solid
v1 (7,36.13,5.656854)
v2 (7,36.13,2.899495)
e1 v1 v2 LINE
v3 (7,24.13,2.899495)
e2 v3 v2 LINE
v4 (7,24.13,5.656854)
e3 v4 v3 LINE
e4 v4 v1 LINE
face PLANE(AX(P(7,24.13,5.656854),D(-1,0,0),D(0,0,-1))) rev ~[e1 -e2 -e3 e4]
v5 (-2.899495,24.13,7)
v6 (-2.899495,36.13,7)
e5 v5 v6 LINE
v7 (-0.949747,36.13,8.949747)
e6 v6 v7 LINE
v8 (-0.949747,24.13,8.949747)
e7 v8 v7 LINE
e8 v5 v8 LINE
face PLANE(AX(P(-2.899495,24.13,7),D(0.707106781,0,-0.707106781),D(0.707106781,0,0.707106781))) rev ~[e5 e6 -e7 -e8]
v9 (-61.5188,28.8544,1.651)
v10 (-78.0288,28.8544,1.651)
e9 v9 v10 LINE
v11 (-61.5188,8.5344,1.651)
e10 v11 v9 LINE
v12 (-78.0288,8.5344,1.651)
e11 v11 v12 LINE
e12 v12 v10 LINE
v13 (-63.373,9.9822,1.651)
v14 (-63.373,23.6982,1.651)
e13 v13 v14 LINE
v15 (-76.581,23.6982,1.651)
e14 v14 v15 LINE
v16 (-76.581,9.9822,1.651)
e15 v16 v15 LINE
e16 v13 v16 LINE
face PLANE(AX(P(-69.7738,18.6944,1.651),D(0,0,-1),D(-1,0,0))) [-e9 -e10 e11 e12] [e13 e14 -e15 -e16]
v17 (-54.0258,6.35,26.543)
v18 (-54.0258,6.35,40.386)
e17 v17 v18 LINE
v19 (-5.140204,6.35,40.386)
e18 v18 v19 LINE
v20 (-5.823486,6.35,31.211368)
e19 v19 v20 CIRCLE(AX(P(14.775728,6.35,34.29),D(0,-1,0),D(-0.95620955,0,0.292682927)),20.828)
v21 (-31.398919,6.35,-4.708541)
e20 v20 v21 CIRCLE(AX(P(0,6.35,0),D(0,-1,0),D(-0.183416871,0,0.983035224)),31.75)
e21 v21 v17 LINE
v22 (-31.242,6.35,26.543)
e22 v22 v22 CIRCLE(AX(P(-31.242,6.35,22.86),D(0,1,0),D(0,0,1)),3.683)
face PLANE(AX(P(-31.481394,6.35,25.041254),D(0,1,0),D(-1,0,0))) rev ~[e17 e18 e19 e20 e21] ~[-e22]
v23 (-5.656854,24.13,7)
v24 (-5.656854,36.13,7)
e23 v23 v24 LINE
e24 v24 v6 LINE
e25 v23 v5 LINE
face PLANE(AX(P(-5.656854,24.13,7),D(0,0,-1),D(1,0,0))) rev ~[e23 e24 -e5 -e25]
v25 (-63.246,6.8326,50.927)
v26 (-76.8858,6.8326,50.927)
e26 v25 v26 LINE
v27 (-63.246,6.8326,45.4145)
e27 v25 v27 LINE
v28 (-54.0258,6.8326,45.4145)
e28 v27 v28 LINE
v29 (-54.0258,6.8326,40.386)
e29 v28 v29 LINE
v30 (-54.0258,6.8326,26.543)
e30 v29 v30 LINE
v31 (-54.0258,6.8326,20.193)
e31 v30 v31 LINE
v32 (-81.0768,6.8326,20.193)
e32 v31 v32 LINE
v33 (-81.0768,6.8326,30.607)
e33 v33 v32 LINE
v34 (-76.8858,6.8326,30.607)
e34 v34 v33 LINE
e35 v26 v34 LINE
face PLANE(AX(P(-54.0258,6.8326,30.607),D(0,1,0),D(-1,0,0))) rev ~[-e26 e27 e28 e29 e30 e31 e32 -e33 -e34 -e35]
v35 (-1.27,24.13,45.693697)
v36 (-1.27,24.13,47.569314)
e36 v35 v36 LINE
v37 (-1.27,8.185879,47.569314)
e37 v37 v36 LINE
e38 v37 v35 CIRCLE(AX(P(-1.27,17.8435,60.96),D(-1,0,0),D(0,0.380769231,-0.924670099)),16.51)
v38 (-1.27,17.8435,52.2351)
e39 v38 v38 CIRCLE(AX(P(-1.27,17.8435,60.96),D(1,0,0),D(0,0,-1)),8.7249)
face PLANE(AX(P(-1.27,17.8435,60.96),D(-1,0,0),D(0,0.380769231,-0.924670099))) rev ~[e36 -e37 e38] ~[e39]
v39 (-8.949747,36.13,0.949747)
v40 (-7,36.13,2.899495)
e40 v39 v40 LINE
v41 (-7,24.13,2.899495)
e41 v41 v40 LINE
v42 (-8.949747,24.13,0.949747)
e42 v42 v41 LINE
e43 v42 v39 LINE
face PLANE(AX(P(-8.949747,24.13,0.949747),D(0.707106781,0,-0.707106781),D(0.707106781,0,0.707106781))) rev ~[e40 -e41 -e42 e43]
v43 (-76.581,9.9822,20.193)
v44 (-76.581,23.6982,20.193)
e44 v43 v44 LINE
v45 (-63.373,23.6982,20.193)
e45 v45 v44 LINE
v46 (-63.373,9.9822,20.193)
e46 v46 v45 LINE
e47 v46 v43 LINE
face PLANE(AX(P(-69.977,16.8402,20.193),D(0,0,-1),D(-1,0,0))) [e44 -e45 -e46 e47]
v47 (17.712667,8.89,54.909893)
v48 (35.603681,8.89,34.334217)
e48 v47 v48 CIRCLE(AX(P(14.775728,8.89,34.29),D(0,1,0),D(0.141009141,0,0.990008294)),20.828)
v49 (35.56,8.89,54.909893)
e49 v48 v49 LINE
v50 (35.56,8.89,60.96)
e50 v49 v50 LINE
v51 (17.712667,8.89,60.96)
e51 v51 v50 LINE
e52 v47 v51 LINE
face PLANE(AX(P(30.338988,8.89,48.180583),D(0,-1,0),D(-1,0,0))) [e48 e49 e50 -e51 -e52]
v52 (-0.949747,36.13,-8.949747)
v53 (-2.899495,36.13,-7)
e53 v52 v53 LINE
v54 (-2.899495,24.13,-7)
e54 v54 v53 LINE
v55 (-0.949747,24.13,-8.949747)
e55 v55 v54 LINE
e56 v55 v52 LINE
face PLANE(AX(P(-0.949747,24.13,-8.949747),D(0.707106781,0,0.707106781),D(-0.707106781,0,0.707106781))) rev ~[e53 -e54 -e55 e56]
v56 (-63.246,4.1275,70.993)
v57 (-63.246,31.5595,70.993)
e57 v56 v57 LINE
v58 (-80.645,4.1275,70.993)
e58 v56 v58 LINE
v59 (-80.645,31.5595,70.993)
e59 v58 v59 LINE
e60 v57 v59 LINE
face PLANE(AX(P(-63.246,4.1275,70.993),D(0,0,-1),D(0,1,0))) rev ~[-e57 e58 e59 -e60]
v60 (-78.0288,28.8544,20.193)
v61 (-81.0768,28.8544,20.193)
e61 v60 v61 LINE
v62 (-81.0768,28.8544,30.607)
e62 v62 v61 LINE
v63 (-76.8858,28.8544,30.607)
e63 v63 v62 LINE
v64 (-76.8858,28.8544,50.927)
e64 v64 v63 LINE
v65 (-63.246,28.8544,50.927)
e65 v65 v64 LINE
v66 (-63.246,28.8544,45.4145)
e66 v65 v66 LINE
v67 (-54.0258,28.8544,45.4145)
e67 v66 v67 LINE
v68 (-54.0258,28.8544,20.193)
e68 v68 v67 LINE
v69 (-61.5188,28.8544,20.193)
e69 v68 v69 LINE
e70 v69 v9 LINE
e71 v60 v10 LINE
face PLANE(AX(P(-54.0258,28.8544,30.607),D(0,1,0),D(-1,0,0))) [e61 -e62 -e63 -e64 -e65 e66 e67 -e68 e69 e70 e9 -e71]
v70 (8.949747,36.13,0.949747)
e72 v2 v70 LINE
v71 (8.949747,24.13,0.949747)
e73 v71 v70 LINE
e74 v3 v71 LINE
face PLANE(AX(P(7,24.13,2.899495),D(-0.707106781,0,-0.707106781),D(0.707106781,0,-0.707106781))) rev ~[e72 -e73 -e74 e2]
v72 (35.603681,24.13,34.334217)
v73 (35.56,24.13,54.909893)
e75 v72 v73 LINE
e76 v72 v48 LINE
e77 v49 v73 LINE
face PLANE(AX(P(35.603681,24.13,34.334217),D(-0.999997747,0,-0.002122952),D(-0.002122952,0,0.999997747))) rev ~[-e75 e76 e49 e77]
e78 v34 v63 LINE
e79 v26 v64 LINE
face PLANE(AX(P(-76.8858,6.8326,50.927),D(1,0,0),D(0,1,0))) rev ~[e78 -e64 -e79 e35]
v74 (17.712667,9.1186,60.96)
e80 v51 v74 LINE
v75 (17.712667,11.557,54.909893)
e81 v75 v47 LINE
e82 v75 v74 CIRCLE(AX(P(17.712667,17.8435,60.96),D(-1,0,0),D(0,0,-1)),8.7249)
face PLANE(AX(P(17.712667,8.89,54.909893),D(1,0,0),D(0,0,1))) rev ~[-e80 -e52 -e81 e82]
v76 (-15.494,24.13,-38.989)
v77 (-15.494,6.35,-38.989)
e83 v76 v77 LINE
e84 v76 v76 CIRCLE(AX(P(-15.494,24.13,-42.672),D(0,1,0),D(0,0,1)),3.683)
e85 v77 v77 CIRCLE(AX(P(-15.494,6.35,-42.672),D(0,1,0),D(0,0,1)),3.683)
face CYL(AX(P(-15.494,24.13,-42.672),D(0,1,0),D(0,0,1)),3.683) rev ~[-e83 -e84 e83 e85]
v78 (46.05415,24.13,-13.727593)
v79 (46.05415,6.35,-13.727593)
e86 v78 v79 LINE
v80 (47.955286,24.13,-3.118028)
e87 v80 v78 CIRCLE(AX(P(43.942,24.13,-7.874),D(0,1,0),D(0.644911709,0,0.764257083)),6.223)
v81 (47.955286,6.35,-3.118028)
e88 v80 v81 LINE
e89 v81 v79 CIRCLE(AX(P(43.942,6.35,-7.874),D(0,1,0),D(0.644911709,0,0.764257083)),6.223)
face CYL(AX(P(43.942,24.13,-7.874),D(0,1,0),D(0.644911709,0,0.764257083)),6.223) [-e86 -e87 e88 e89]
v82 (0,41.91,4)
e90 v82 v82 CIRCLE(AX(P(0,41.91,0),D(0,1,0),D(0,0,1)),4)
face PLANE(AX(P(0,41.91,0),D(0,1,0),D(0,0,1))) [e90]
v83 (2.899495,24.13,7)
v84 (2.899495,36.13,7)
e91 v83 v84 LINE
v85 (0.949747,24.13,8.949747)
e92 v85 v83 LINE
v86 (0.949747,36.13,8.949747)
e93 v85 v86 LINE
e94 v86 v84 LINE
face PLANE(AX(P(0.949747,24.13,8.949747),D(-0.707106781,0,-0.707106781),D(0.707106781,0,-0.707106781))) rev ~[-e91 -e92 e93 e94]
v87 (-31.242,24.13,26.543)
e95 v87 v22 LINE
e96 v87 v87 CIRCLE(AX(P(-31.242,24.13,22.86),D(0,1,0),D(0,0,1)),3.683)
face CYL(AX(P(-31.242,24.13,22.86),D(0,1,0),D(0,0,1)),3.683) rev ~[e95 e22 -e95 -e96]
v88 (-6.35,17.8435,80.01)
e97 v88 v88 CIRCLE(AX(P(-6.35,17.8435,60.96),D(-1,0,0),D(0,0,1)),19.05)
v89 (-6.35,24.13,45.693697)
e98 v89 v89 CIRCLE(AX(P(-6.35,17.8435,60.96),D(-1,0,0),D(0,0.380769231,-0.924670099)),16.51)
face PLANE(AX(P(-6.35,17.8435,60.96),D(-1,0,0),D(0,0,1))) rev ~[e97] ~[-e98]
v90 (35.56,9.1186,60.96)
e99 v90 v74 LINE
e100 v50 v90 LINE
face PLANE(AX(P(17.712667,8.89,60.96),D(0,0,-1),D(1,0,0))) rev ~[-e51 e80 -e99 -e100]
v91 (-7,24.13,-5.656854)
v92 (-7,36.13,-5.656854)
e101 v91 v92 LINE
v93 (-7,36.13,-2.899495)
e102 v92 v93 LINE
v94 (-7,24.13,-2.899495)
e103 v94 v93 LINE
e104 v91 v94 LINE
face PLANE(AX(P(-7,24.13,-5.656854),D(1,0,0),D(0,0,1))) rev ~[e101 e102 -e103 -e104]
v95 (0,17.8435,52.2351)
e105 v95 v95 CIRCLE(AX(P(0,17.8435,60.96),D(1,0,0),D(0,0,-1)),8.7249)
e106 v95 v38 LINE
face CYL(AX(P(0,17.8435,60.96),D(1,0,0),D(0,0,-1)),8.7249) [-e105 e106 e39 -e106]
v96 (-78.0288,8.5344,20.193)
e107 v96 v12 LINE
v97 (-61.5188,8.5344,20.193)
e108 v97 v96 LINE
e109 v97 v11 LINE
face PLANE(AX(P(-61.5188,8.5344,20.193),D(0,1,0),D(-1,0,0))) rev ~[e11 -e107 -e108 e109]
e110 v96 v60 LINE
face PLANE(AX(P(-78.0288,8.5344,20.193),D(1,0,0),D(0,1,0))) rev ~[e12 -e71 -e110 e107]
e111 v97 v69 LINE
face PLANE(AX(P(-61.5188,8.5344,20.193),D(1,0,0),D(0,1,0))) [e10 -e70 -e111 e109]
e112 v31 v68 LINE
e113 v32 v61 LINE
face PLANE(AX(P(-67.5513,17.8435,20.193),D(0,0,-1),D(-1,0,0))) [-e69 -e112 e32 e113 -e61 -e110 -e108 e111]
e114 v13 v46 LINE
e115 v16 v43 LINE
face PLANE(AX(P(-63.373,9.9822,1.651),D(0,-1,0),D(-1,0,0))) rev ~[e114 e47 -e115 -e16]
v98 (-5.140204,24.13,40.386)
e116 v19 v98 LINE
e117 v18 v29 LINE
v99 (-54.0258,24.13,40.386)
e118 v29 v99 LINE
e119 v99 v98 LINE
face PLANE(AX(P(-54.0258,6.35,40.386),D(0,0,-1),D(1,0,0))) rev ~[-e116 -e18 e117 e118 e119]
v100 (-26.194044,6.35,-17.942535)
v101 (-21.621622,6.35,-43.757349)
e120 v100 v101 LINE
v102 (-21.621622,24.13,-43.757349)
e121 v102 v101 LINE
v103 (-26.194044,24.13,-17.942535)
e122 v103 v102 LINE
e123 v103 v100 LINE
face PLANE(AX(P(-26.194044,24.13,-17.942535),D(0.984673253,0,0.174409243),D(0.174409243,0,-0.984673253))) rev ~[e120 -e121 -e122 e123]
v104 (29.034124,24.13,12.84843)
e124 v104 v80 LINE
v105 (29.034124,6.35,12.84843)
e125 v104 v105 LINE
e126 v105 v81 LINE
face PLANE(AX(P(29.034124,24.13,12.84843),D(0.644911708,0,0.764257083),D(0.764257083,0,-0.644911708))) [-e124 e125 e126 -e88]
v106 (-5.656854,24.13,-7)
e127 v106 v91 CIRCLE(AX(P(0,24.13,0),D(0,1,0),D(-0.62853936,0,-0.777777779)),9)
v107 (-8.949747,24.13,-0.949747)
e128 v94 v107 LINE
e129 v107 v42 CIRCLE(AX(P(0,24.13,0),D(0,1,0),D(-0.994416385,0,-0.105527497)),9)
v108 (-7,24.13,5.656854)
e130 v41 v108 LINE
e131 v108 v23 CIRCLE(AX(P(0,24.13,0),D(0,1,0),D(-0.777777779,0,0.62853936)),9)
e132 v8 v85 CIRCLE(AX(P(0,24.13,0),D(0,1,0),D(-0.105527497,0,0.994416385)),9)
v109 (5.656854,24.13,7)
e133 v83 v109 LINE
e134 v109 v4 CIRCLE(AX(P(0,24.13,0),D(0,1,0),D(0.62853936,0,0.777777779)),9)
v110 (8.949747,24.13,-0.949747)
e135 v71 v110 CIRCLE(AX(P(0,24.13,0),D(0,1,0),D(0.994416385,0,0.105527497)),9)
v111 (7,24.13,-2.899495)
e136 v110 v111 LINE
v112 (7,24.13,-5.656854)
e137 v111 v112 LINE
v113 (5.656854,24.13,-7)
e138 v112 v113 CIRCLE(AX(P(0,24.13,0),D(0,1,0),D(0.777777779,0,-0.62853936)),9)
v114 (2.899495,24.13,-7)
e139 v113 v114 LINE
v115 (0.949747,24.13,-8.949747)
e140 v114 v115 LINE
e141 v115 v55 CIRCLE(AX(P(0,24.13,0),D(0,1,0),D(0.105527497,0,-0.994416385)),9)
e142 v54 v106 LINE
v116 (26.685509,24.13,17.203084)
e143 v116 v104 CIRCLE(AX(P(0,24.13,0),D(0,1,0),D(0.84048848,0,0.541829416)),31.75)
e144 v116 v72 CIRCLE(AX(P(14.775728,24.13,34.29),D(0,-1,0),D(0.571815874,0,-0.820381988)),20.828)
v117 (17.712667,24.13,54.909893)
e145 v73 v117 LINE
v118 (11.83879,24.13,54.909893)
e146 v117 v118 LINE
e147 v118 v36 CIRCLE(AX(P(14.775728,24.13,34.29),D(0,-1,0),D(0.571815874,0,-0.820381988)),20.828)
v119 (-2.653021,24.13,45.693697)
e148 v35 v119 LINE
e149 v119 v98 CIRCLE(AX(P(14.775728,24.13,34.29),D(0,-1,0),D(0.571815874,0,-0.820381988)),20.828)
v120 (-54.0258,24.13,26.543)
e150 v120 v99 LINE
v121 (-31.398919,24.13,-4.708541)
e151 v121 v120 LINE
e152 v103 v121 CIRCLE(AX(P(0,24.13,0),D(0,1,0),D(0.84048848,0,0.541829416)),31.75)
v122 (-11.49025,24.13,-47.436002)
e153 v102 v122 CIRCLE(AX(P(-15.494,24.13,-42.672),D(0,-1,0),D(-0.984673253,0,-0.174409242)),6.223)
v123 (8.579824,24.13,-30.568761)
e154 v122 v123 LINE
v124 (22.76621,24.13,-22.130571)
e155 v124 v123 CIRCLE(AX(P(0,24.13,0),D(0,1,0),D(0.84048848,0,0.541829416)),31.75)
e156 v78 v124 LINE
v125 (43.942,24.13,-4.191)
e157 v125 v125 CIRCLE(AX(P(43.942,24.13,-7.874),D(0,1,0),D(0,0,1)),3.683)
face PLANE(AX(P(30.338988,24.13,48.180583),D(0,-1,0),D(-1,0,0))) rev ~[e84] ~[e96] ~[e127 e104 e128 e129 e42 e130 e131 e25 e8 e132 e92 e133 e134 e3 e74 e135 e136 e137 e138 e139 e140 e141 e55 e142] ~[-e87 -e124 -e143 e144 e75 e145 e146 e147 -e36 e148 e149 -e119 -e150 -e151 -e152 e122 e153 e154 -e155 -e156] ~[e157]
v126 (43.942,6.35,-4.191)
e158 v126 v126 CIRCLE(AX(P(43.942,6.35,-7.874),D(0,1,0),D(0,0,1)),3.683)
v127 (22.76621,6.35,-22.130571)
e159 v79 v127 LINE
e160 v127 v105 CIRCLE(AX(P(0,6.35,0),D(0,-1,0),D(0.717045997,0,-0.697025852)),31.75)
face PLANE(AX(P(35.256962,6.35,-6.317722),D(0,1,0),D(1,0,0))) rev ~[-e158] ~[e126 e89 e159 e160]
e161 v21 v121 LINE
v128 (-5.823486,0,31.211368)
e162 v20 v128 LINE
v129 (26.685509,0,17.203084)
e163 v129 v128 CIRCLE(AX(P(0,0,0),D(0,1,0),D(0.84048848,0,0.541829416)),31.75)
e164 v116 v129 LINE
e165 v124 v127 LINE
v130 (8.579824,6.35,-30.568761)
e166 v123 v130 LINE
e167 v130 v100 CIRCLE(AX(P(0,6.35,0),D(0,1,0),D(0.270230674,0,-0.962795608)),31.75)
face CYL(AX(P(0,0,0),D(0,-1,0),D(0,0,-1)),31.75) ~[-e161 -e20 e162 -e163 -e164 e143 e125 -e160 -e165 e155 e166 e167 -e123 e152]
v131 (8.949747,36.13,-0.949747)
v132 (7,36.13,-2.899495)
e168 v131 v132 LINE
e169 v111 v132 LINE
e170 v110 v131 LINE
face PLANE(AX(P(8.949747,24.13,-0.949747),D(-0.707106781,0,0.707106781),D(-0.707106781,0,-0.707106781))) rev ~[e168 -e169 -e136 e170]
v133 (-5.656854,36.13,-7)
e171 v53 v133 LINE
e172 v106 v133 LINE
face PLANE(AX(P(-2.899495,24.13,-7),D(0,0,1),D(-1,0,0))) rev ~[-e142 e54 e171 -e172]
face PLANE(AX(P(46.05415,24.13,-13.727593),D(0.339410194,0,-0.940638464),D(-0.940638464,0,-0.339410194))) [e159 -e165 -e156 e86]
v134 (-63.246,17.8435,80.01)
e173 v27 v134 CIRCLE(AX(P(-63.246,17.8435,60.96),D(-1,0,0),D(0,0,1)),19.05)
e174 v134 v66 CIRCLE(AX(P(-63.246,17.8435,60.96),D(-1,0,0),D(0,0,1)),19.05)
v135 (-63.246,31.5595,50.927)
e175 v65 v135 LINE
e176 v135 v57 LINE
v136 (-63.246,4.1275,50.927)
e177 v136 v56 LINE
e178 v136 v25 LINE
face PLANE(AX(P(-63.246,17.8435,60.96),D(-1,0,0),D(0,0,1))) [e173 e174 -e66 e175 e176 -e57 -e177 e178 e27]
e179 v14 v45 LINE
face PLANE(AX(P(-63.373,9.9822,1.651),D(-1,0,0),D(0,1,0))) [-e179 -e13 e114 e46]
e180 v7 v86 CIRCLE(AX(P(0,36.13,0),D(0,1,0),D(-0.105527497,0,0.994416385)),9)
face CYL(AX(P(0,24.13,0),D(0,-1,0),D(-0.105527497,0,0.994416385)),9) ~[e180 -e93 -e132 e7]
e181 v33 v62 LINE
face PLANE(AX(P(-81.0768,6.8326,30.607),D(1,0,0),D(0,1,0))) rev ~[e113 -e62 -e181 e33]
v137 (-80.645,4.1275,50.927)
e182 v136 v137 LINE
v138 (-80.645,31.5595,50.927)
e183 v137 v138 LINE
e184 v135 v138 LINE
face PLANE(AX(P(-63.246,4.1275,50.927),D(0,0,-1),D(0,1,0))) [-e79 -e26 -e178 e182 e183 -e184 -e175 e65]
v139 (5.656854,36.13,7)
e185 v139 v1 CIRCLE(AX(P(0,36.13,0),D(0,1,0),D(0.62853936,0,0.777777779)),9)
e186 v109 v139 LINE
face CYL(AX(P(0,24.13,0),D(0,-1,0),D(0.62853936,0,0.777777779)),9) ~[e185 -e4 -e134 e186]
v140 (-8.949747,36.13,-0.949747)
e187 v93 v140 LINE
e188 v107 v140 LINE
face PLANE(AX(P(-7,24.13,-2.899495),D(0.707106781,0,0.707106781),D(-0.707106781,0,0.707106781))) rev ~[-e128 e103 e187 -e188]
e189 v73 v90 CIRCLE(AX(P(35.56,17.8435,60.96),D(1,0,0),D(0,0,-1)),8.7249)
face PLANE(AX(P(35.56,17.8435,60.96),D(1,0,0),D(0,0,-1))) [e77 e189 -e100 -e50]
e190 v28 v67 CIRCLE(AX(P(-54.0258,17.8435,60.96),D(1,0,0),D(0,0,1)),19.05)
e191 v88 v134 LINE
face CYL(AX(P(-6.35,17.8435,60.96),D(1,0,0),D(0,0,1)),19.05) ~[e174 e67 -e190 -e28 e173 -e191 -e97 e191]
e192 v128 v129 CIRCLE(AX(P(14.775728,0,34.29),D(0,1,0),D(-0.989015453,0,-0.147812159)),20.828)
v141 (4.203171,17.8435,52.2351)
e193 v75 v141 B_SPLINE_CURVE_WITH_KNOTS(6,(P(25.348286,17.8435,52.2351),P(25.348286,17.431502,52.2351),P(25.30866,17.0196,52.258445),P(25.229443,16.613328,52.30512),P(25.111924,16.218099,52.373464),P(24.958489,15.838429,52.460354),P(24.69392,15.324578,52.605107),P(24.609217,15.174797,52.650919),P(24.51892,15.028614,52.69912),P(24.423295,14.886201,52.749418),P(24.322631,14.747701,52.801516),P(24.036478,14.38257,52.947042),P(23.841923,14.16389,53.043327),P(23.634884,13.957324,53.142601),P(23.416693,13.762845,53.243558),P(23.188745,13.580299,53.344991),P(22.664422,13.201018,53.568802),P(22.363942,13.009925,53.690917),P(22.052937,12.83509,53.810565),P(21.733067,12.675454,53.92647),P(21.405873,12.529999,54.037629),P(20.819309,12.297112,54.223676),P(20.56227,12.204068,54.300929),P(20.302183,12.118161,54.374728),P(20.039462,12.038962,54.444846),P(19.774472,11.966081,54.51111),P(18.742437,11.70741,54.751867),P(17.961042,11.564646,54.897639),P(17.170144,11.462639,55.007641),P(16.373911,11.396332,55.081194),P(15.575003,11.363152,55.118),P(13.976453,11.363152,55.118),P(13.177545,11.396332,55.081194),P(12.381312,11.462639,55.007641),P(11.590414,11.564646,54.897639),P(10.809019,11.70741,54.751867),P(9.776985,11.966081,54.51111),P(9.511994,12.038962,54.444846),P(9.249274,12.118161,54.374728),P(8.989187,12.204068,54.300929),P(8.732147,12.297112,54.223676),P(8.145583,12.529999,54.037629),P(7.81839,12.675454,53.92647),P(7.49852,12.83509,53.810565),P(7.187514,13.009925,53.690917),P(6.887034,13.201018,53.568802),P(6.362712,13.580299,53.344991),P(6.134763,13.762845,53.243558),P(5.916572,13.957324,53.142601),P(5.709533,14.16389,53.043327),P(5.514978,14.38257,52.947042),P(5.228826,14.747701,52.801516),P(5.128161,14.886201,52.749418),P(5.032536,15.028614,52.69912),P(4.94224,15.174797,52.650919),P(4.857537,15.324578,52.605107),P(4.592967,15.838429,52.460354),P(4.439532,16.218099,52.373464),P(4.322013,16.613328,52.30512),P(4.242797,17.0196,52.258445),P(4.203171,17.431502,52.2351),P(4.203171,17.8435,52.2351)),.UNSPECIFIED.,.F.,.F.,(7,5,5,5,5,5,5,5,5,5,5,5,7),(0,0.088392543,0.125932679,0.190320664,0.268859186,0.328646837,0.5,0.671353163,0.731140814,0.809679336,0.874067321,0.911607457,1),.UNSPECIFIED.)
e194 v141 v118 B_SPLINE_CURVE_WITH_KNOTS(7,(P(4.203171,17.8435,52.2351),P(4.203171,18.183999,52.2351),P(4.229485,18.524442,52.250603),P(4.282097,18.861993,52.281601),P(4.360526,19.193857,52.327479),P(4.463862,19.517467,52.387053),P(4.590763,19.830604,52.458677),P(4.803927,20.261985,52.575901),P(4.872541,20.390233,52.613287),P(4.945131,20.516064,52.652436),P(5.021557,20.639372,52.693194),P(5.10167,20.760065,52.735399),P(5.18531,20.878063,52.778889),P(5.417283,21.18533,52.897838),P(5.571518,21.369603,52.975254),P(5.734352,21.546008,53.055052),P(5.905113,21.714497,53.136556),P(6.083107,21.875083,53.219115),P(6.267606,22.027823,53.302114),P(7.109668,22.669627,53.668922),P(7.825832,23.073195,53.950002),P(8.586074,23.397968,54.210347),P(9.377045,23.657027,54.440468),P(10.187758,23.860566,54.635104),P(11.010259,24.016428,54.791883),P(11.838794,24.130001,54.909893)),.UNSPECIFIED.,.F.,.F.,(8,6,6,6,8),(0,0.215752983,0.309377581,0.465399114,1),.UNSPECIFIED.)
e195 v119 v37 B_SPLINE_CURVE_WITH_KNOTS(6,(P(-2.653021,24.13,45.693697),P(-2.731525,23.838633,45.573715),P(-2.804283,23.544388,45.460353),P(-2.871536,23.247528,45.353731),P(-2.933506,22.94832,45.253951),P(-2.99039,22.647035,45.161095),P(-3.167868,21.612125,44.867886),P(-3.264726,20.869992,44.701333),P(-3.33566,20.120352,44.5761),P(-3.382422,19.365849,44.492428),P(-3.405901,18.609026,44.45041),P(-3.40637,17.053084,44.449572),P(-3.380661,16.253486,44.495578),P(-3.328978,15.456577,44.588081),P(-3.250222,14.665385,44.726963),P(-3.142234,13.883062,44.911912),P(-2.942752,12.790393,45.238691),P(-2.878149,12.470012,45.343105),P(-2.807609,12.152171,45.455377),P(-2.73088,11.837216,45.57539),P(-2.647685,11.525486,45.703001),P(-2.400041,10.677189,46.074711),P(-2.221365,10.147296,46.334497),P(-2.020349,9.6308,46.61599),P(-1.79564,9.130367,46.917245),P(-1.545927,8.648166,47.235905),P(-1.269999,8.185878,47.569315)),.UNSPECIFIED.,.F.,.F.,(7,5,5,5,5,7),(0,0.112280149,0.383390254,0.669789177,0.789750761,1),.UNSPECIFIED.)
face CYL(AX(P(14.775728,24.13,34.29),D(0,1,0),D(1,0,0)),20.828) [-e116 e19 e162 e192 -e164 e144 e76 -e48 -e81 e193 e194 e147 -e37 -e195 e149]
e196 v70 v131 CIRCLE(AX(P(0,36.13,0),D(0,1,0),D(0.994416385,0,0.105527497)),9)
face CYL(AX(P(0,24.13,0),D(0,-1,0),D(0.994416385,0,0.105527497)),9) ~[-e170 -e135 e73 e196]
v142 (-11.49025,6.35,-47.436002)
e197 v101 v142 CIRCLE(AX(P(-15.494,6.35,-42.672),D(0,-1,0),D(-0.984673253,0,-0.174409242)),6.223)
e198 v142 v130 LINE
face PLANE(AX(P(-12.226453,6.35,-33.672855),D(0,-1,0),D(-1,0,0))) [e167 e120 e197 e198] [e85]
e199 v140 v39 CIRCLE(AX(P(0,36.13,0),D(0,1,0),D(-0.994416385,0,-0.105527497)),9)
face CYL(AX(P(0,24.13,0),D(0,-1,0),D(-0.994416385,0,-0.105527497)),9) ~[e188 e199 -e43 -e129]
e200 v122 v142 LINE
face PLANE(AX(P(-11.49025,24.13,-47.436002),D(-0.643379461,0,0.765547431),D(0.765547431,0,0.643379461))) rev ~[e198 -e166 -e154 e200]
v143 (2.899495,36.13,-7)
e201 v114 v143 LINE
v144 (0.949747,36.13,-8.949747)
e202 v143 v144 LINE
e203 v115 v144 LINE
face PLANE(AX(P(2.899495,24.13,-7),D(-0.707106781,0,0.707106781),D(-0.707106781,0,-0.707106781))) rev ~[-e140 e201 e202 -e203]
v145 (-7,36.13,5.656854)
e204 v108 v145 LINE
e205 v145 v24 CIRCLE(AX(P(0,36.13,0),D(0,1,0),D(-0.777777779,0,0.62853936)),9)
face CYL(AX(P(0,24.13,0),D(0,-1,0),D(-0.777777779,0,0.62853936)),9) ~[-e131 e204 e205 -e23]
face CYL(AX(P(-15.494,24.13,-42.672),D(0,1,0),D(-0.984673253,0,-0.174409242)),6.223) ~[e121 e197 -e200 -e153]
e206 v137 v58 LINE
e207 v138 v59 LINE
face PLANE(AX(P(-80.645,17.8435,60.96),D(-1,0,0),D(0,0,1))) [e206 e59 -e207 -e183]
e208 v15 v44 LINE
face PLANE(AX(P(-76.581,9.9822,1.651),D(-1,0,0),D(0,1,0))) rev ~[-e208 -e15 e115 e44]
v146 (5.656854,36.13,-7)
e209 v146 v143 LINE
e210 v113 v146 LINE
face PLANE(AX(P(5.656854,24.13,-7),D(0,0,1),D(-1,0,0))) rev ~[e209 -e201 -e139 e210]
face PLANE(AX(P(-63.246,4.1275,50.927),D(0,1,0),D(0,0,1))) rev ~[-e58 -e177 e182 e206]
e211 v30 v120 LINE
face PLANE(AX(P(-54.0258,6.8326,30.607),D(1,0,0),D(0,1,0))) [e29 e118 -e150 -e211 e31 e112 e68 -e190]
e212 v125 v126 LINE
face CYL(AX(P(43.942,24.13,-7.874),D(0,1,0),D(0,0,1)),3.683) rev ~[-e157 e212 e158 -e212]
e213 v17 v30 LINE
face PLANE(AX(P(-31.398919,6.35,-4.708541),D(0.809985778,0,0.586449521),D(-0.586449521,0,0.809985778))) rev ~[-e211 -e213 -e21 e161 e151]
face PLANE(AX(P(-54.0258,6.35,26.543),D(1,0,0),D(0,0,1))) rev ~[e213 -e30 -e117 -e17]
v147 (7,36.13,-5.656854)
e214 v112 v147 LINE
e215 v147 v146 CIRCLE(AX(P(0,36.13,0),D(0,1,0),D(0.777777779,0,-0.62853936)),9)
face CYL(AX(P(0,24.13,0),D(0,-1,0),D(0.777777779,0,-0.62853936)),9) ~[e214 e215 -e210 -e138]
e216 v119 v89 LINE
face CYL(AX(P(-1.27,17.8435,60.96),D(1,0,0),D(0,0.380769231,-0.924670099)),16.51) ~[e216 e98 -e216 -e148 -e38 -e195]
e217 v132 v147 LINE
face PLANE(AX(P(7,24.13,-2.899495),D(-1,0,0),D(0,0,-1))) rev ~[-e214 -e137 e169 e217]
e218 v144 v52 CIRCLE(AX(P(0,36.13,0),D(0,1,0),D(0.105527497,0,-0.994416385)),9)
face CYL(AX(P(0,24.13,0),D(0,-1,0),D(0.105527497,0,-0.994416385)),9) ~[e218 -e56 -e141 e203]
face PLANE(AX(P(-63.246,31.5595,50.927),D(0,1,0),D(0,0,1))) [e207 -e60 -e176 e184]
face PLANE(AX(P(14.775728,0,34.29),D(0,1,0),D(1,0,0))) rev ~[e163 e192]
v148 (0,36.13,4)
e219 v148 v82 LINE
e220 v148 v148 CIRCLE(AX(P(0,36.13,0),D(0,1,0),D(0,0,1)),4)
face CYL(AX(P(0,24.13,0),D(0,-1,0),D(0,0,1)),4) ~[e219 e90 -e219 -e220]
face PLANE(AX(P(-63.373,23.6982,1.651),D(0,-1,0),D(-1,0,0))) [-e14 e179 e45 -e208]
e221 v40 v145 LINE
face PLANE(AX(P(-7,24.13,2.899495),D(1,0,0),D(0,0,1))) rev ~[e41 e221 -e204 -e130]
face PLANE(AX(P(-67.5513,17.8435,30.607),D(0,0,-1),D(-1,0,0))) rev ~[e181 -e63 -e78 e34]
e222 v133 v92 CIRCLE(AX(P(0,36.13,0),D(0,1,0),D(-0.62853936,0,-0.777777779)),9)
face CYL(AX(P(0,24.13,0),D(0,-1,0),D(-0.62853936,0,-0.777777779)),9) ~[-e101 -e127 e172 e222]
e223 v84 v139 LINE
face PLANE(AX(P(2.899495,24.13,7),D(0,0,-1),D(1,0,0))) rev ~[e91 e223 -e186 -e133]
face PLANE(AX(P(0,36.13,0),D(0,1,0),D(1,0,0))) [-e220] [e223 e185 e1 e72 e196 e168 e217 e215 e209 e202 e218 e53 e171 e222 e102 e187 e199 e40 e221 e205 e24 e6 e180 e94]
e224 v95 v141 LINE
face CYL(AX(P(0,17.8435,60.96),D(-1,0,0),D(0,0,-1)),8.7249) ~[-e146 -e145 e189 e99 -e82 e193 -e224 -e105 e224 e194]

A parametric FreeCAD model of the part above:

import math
import FreeCAD as App
import Part
import Sketcher
from FreeCAD import Vector
Q = App.Units.Quantity


def add_polygon(sketch, points):
    """Adds a closed chain of lines whose ends are joined by coincident constraints."""
    first, n = sketch.GeometryCount, len(points)
    for a, b in zip(points, points[1:] + points[:1]):
        sketch.addGeometry(Part.LineSegment(App.Vector(*a, 0), App.Vector(*b, 0)), False)
    for i in range(n):
        sketch.addConstraint(Sketcher.Constraint("Coincident", first + i, 2, first + (i + 1) % n, 1))

doc = App.newDocument("Part")
body = doc.addObject("PartDesign::Body", "Body")

# Sketch on XZ plane
sketch1 = body.newObject("Sketcher::SketchObject", "Sketch")
sketch1.AttachmentSupport = (doc.getObject("XZ_Plane"), [""])
sketch1.MapMode = "FlatFace"
sketch1.addGeometry(Part.Circle(Vector(0, 0, 0), Vector(0, 0, 1), 32), False)
sketch1.addConstraint(Sketcher.Constraint("Coincident", 0, 3, -1, 1))
sketch1.addConstraint(Sketcher.Constraint("Diameter", 0, Q("2.5 in")))
pad1 = body.newObject("PartDesign::Pad", "Pad")
pad1.Profile = sketch1
pad1.Length = Q("0.95 in")
pad1.Reversed = True

# Sketch on XZ plane
sketch2 = body.newObject("Sketcher::SketchObject", "Sketch001")
sketch2.AttachmentSupport = (doc.getObject("XZ_Plane"), [""])
sketch2.MapMode = "FlatFace"
sketch2.AttachmentOffset = App.Placement(Vector(0, 0, -0.95 * 25.4), App.Rotation())
sketch2.addGeometry(Part.Circle(Vector(15, 34, 0), Vector(0, 0, 1), 21), False)
sketch2.addConstraint(Sketcher.Constraint("Diameter", 0, Q("1.64 in")))
sketch2.addConstraint(Sketcher.Constraint("DistanceY", -1, 1, 0, 3, Q("1.35 in")))
sketch2.addConstraint(Sketcher.Constraint("DistanceX", -1, 1, 0, 3, Q("14.775728 mm")))
pad2 = body.newObject("PartDesign::Pad", "Pad001")
pad2.Profile = sketch2
pad2.Length = Q("0.95 in")

# Sketch on YZ plane
sketch3 = body.newObject("Sketcher::SketchObject", "Sketch002")
sketch3.AttachmentSupport = (doc.getObject("YZ_Plane"), [""])
sketch3.MapMode = "FlatFace"
sketch3.addGeometry(Part.Circle(Vector(18, 61, 0), Vector(0, 0, 1), 9), False)
sketch3.addConstraint(Sketcher.Constraint("Diameter", 0, Q("0.687 in")))
sketch3.addConstraint(Sketcher.Constraint("DistanceY", -1, 1, 0, 3, Q("2.4 in")))
sketch3.addConstraint(Sketcher.Constraint("DistanceX", -1, 1, 0, 3, Q("0.7025 in")))
pad3 = body.newObject("PartDesign::Pad", "Pad002")
pad3.Profile = sketch3
pad3.Type = "TwoLengths"
pad3.Length = Q("1.4 in")
pad3.Length2 = Q("0.05 in")

# Sketch on YZ plane
sketch4 = body.newObject("Sketcher::SketchObject", "Sketch003")
sketch4.AttachmentSupport = (doc.getObject("YZ_Plane"), [""])
sketch4.MapMode = "FlatFace"
sketch4.AttachmentOffset = App.Placement(Vector(0, 0, -0.05 * 25.4), App.Rotation())
sketch4.addGeometry(Part.Circle(Vector(18, 61, 0), Vector(0, 0, 1), 17), False)
sketch4.addConstraint(Sketcher.Constraint("Diameter", 0, Q("1.3 in")))
sketch4.addConstraint(Sketcher.Constraint("DistanceY", -1, 1, 0, 3, Q("2.4 in")))
sketch4.addConstraint(Sketcher.Constraint("DistanceX", -1, 1, 0, 3, Q("0.7025 in")))
pad4 = body.newObject("PartDesign::Pad", "Pad003")
pad4.Profile = sketch4
pad4.Length = Q("0.2 in")
pad4.Reversed = True

# Sketch on YZ plane
sketch5 = body.newObject("Sketcher::SketchObject", "Sketch004")
sketch5.AttachmentSupport = (doc.getObject("YZ_Plane"), [""])
sketch5.MapMode = "FlatFace"
sketch5.AttachmentOffset = App.Placement(Vector(0, 0, -0.25 * 25.4), App.Rotation())
sketch5.addGeometry(Part.Circle(Vector(18, 61, 0), Vector(0, 0, 1), 19), False)
sketch5.addConstraint(Sketcher.Constraint("Diameter", 0, Q("1.5 in")))
sketch5.addConstraint(Sketcher.Constraint("DistanceY", -1, 1, 0, 3, Q("2.4 in")))
sketch5.addConstraint(Sketcher.Constraint("DistanceX", -1, 1, 0, 3, Q("0.7025 in")))
pad5 = body.newObject("PartDesign::Pad", "Pad004")
pad5.Profile = sketch5
pad5.Length = Q("2.24 in")
pad5.Reversed = True

# Sketch on YZ plane
sketch6 = body.newObject("Sketcher::SketchObject", "Sketch005")
sketch6.AttachmentSupport = (doc.getObject("YZ_Plane"), [""])
sketch6.MapMode = "FlatFace"
sketch6.AttachmentOffset = App.Placement(Vector(0, 0, -2.49 * 25.4), App.Rotation())
add_polygon(sketch6, [(32, 51), (4, 51), (4, 71), (32, 71)])  # lines 0-3
sketch6.addConstraint(Sketcher.Constraint("Horizontal", 0))
sketch6.addConstraint(Sketcher.Constraint("Vertical", 1))
sketch6.addConstraint(Sketcher.Constraint("Horizontal", 2))
sketch6.addConstraint(Sketcher.Constraint("Vertical", 3))
sketch6.addConstraint(Sketcher.Constraint("DistanceX", 0, 2, 0, 1, Q("1.08 in")))
sketch6.addConstraint(Sketcher.Constraint("DistanceY", 1, 1, 1, 2, Q("0.79 in")))
sketch6.addConstraint(Sketcher.Constraint("DistanceY", -1, 1, 0, 2, Q("2.005 in")))
sketch6.addConstraint(Sketcher.Constraint("DistanceX", -1, 1, 0, 2, Q("0.1625 in")))
pad6 = body.newObject("PartDesign::Pad", "Pad005")
pad6.Profile = sketch6
pad6.Length = Q("0.685 in")
pad6.Reversed = True

# Sketch on XY plane
sketch7 = body.newObject("Sketcher::SketchObject", "Sketch006")
sketch7.AttachmentSupport = (doc.getObject("XY_Plane"), [""])
sketch7.MapMode = "FlatFace"
sketch7.AttachmentOffset = App.Placement(Vector(0, 0, 2.005 * 25.4), App.Rotation())
add_polygon(sketch7, [(-54, 29), (-54, 7), (-77, 7), (-77, 29)])  # lines 0-3
sketch7.addConstraint(Sketcher.Constraint("Vertical", 0))
sketch7.addConstraint(Sketcher.Constraint("Horizontal", 1))
sketch7.addConstraint(Sketcher.Constraint("Vertical", 2))
sketch7.addConstraint(Sketcher.Constraint("Horizontal", 3))
sketch7.addConstraint(Sketcher.Constraint("DistanceX", 1, 2, 1, 1, Q("0.9 in")))
sketch7.addConstraint(Sketcher.Constraint("DistanceY", 0, 2, 0, 1, Q("0.867 in")))
sketch7.addConstraint(Sketcher.Constraint("DistanceX", 0, 2, -1, 1, Q("2.127 in")))
sketch7.addConstraint(Sketcher.Constraint("DistanceY", -1, 1, 0, 2, Q("0.269 in")))
pad7 = body.newObject("PartDesign::Pad", "Pad006")
pad7.Profile = sketch7
pad7.Length = Q("0.8 in")
pad7.Reversed = True

# Sketch on XY plane
sketch8 = body.newObject("Sketcher::SketchObject", "Sketch007")
sketch8.AttachmentSupport = (doc.getObject("XY_Plane"), [""])
sketch8.MapMode = "FlatFace"
sketch8.AttachmentOffset = App.Placement(Vector(0, 0, 1.205 * 25.4), App.Rotation())
add_polygon(sketch8, [(-54, 29), (-54, 7), (-81, 7), (-81, 29)])  # lines 0-3
sketch8.addConstraint(Sketcher.Constraint("Vertical", 0))
sketch8.addConstraint(Sketcher.Constraint("Horizontal", 1))
sketch8.addConstraint(Sketcher.Constraint("Vertical", 2))
sketch8.addConstraint(Sketcher.Constraint("Horizontal", 3))
sketch8.addConstraint(Sketcher.Constraint("DistanceX", 1, 2, 1, 1, Q("1.065 in")))
sketch8.addConstraint(Sketcher.Constraint("DistanceY", 0, 2, 0, 1, Q("0.867 in")))
sketch8.addConstraint(Sketcher.Constraint("DistanceX", 0, 2, -1, 1, Q("2.127 in")))
sketch8.addConstraint(Sketcher.Constraint("DistanceY", -1, 1, 0, 2, Q("0.269 in")))
pad8 = body.newObject("PartDesign::Pad", "Pad007")
pad8.Profile = sketch8
pad8.Length = Q("0.41 in")
pad8.Reversed = True

# Sketch on XY plane
sketch9 = body.newObject("Sketcher::SketchObject", "Sketch008")
sketch9.AttachmentSupport = (doc.getObject("XY_Plane"), [""])
sketch9.MapMode = "FlatFace"
sketch9.AttachmentOffset = App.Placement(Vector(0, 0, 0.795 * 25.4), App.Rotation())
add_polygon(sketch9, [(-62, 29), (-62, 9), (-78, 9), (-78, 29)])  # lines 0-3
sketch9.addConstraint(Sketcher.Constraint("Vertical", 0))
sketch9.addConstraint(Sketcher.Constraint("Horizontal", 1))
sketch9.addConstraint(Sketcher.Constraint("Vertical", 2))
sketch9.addConstraint(Sketcher.Constraint("Horizontal", 3))
sketch9.addConstraint(Sketcher.Constraint("DistanceY", 0, 2, 0, 1, Q("0.8 in")))
sketch9.addConstraint(Sketcher.Constraint("DistanceX", 1, 2, 1, 1, Q("0.65 in")))
sketch9.addConstraint(Sketcher.Constraint("DistanceX", 0, 2, -1, 1, Q("2.422 in")))
sketch9.addConstraint(Sketcher.Constraint("DistanceY", -1, 1, 0, 2, Q("0.336 in")))
pad9 = body.newObject("PartDesign::Pad", "Pad008")
pad9.Profile = sketch9
pad9.Length = Q("0.73 in")
pad9.Reversed = True

# Sketch on XY plane
sketch10 = body.newObject("Sketcher::SketchObject", "Sketch009")
sketch10.AttachmentSupport = (doc.getObject("XY_Plane"), [""])
sketch10.MapMode = "FlatFace"
sketch10.AttachmentOffset = App.Placement(Vector(0, 0, 0.065 * 25.4), App.Rotation())
add_polygon(sketch10, [(-63, 24), (-63, 10), (-77, 10), (-77, 24)])  # lines 0-3
sketch10.addConstraint(Sketcher.Constraint("Vertical", 0))
sketch10.addConstraint(Sketcher.Constraint("Horizontal", 1))
sketch10.addConstraint(Sketcher.Constraint("Vertical", 2))
sketch10.addConstraint(Sketcher.Constraint("Horizontal", 3))
sketch10.addConstraint(Sketcher.Constraint("DistanceX", 1, 2, 1, 1, Q("0.52 in")))
sketch10.addConstraint(Sketcher.Constraint("DistanceY", 0, 2, 0, 1, Q("0.54 in")))
sketch10.addConstraint(Sketcher.Constraint("DistanceX", 0, 2, -1, 1, Q("2.495 in")))
sketch10.addConstraint(Sketcher.Constraint("DistanceY", -1, 1, 0, 2, Q("0.393 in")))
pocket1 = body.newObject("PartDesign::Pocket", "Pocket")
pocket1.Profile = sketch10
pocket1.Length = Q("0.73 in")
pocket1.Reversed = True

# Sketch on XZ plane
sketch11 = body.newObject("Sketcher::SketchObject", "Sketch010")
sketch11.AttachmentSupport = (doc.getObject("XZ_Plane"), [""])
sketch11.MapMode = "FlatFace"
sketch11.AttachmentOffset = App.Placement(Vector(0, 0, -0.25 * 25.4), App.Rotation())
sketch11.addGeometry(Part.LineSegment(Vector(-54, 27, 0), Vector(-31, -5, 0)), False)
sketch11.addGeometry(Part.ArcOfCircle(Part.Circle(Vector(0, 0, 0), Vector(0, 0, 1), 32), math.radians(101), math.radians(189)), False)
sketch11.addGeometry(Part.ArcOfCircle(Part.Circle(Vector(15, 34, 0), Vector(0, 0, 1), 21), math.radians(163), math.radians(189)), False)
sketch11.addGeometry(Part.LineSegment(Vector(-5, 40, 0), Vector(-54, 40, 0)), False)
sketch11.addGeometry(Part.LineSegment(Vector(-54, 40, 0), Vector(-54, 27, 0)), False)
sketch11.addConstraint(Sketcher.Constraint("Coincident", 0, 2, 1, 2))
sketch11.addConstraint(Sketcher.Constraint("Coincident", 1, 1, 2, 2))
sketch11.addConstraint(Sketcher.Constraint("Coincident", 2, 1, 3, 1))
sketch11.addConstraint(Sketcher.Constraint("Coincident", 3, 2, 4, 1))
sketch11.addConstraint(Sketcher.Constraint("Coincident", 4, 2, 0, 1))
sketch11.addConstraint(Sketcher.Constraint("Horizontal", 3))
sketch11.addConstraint(Sketcher.Constraint("Vertical", 4))
sketch11.addConstraint(Sketcher.Constraint("Coincident", 1, 3, -1, 1))
sketch11.addConstraint(Sketcher.Constraint("Radius", 1, Q("1.25 in")))
sketch11.addConstraint(Sketcher.Constraint("Radius", 2, Q("0.82 in")))
sketch11.addConstraint(Sketcher.Constraint("DistanceY", 4, 2, 4, 1, Q("0.545 in")))
sketch11.addConstraint(Sketcher.Constraint("DistanceY", -1, 1, 2, 3, Q("1.35 in")))
sketch11.addConstraint(Sketcher.Constraint("DistanceY", -1, 1, 2, 1, Q("1.59 in")))
sketch11.addConstraint(Sketcher.Constraint("DistanceX", 3, 2, -1, 1, Q("2.127 in")))
sketch11.addConstraint(Sketcher.Constraint("DistanceX", 3, 2, 3, 1, Q("48.885596 mm")))
sketch11.addConstraint(Sketcher.Constraint("DistanceX", 0, 2, -1, 1, Q("31.398919 mm")))
pad10 = body.newObject("PartDesign::Pad", "Pad009")
pad10.Profile = sketch11
pad10.Length = Q("0.7 in")
pad10.Reversed = True

# Sketch on XZ plane
sketch12 = body.newObject("Sketcher::SketchObject", "Sketch011")
sketch12.AttachmentSupport = (doc.getObject("XZ_Plane"), [""])
sketch12.MapMode = "FlatFace"
sketch12.AttachmentOffset = App.Placement(Vector(0, 0, -0.95 * 25.4), App.Rotation())
sketch12.addGeometry(Part.LineSegment(Vector(36, 55, 0), Vector(36, 34, 0)), False)
sketch12.addGeometry(Part.ArcOfCircle(Part.Circle(Vector(15, 34, 0), Vector(0, 0, 1), 21), math.radians(0), math.radians(82)), False)
sketch12.addGeometry(Part.LineSegment(Vector(18, 55, 0), Vector(36, 55, 0)), False)
sketch12.addConstraint(Sketcher.Constraint("Tangent", 0, 2, 1, 1))
sketch12.addConstraint(Sketcher.Constraint("Coincident", 1, 2, 2, 1))
sketch12.addConstraint(Sketcher.Constraint("Coincident", 2, 2, 0, 1))
sketch12.addConstraint(Sketcher.Constraint("Horizontal", 2))
sketch12.addConstraint(Sketcher.Constraint("Radius", 1, Q("0.82 in")))
sketch12.addConstraint(Sketcher.Constraint("DistanceX", -1, 1, 2, 2, Q("1.4 in")))
sketch12.addConstraint(Sketcher.Constraint("DistanceY", -1, 1, 1, 3, Q("1.35 in")))
sketch12.addConstraint(Sketcher.Constraint("DistanceX", 2, 1, 2, 2, Q("17.847333 mm")))
sketch12.addConstraint(Sketcher.Constraint("DistanceX", -1, 1, 1, 3, Q("14.775728 mm")))
pad11 = body.newObject("PartDesign::Pad", "Pad010")
pad11.Profile = sketch12
pad11.Length = Q("0.6 in")

# Sketch on XZ plane
sketch13 = body.newObject("Sketcher::SketchObject", "Sketch012")
sketch13.AttachmentSupport = (doc.getObject("XZ_Plane"), [""])
sketch13.MapMode = "FlatFace"
sketch13.AttachmentOffset = App.Placement(Vector(0, 0, -0.35 * 25.4), App.Rotation())
add_polygon(sketch13, [(18, 61), (18, 55), (36, 55), (36, 61)])  # lines 0-3
sketch13.addConstraint(Sketcher.Constraint("Vertical", 0))
sketch13.addConstraint(Sketcher.Constraint("Horizontal", 1))
sketch13.addConstraint(Sketcher.Constraint("Vertical", 2))
sketch13.addConstraint(Sketcher.Constraint("Horizontal", 3))
sketch13.addConstraint(Sketcher.Constraint("DistanceX", -1, 1, 1, 2, Q("1.4 in")))
sketch13.addConstraint(Sketcher.Constraint("DistanceY", -1, 1, 2, 2, Q("2.4 in")))
sketch13.addConstraint(Sketcher.Constraint("DistanceX", 1, 1, 1, 2, Q("17.847333 mm")))
sketch13.addConstraint(Sketcher.Constraint("DistanceY", 0, 2, 0, 1, Q("6.050107 mm")))
pad12 = body.newObject("PartDesign::Pad", "Pad011")
pad12.Profile = sketch13
pad12.Length = Q("0.6 in")
pad12.Reversed = True

# Sketch on XZ plane
sketch14 = body.newObject("Sketcher::SketchObject", "Sketch013")
sketch14.AttachmentSupport = (doc.getObject("XZ_Plane"), [""])
sketch14.MapMode = "FlatFace"
sketch14.AttachmentOffset = App.Placement(Vector(0, 0, -0.95 * 25.4), App.Rotation())
sketch14.addGeometry(Part.LineSegment(Vector(-21.6, -43.8, 0), Vector(-26.2, -17.9, 0)), False)
sketch14.addGeometry(Part.ArcOfCircle(Part.Circle(Vector(0, 0, 0), Vector(0, 0, 1), 31.8), math.radians(-146), math.radians(-74)), False)
sketch14.addGeometry(Part.LineSegment(Vector(8.6, -30.6, 0), Vector(-11.5, -47.4, 0)), False)
sketch14.addGeometry(Part.ArcOfCircle(Part.Circle(Vector(-15.5, -42.7, 0), Vector(0, 0, 1), 6.2), math.radians(-170), math.radians(-50)), False)
sketch14.addGeometry(Part.Circle(Vector(-15.5, -42.7, 0), Vector(0, 0, 1), 3.7), False)
sketch14.addGeometry(Part.LineSegment(Vector(46.1, -13.7, 0), Vector(22.8, -22.1, 0)), False)
sketch14.addGeometry(Part.ArcOfCircle(Part.Circle(Vector(0, 0, 0), Vector(0, 0, 1), 31.8), math.radians(-44), math.radians(24)), False)
sketch14.addGeometry(Part.LineSegment(Vector(29, 12.8, 0), Vector(48, -3.1, 0)), False)
sketch14.addGeometry(Part.ArcOfCircle(Part.Circle(Vector(43.9, -7.9, 0), Vector(0, 0, 1), 6.2), math.radians(-70), math.radians(50)), False)
sketch14.addGeometry(Part.Circle(Vector(43.9, -7.9, 0), Vector(0, 0, 1), 3.7), False)
sketch14.addConstraint(Sketcher.Constraint("Coincident", 0, 2, 1, 1))
sketch14.addConstraint(Sketcher.Constraint("Coincident", 1, 2, 2, 1))
sketch14.addConstraint(Sketcher.Constraint("Tangent", 2, 2, 3, 2))
sketch14.addConstraint(Sketcher.Constraint("Tangent", 3, 1, 0, 1))
sketch14.addConstraint(Sketcher.Constraint("Coincident", 5, 2, 6, 1))
sketch14.addConstraint(Sketcher.Constraint("Coincident", 6, 2, 7, 1))
sketch14.addConstraint(Sketcher.Constraint("Tangent", 7, 2, 8, 2))
sketch14.addConstraint(Sketcher.Constraint("Tangent", 8, 1, 5, 1))
sketch14.addConstraint(Sketcher.Constraint("Coincident", 1, 3, -1, 1))
sketch14.addConstraint(Sketcher.Constraint("Coincident", 6, 3, -1, 1))
sketch14.addConstraint(Sketcher.Constraint("Coincident", 4, 3, 3, 3))
sketch14.addConstraint(Sketcher.Constraint("Coincident", 9, 3, 8, 3))
sketch14.addConstraint(Sketcher.Constraint("Equal", 1, 6))
sketch14.addConstraint(Sketcher.Constraint("Equal", 3, 8))
sketch14.addConstraint(Sketcher.Constraint("Equal", 4, 9))
sketch14.addConstraint(Sketcher.Constraint("Equal", 0, 2))
sketch14.addConstraint(Sketcher.Constraint("Equal", 5, 7))
sketch14.addConstraint(Sketcher.Constraint("Diameter", 4, Q("0.29 in")))
sketch14.addConstraint(Sketcher.Constraint("Radius", 1, Q("1.25 in")))
sketch14.addConstraint(Sketcher.Constraint("Radius", 3, Q("0.245 in")))
sketch14.addConstraint(Sketcher.Constraint("DistanceX", 3, 3, -1, 1, Q("0.61 in")))
sketch14.addConstraint(Sketcher.Constraint("DistanceY", 3, 3, -1, 1, Q("1.68 in")))
sketch14.addConstraint(Sketcher.Constraint("DistanceX", -1, 1, 8, 3, Q("1.73 in")))
sketch14.addConstraint(Sketcher.Constraint("DistanceY", 8, 3, -1, 1, Q("0.31 in")))
sketch14.addConstraint(Sketcher.Constraint("DistanceY", 8, 1, 6, 2, Q("1.0463001 in")))
sketch14.addConstraint(Sketcher.Constraint("DistanceY", 2, 2, -1, 1, Q("47.436002 mm")))
pad13 = body.newObject("PartDesign::Pad", "Pad012")
pad13.Profile = sketch14
pad13.Length = Q("0.7 in")

# Sketch on XZ plane
sketch15 = body.newObject("Sketcher::SketchObject", "Sketch014")
sketch15.AttachmentSupport = (doc.getObject("XZ_Plane"), [""])
sketch15.MapMode = "FlatFace"
sketch15.AttachmentOffset = App.Placement(Vector(0, 0, -0.95 * 25.4), App.Rotation())
sketch15.addGeometry(Part.Circle(Vector(-31.2, 22.9, 0), Vector(0, 0, 1), 3.7), False)
sketch15.addGeometry(Part.Circle(Vector(43.9, -7.9, 0), Vector(0, 0, 1), 3.7), False)
sketch15.addGeometry(Part.Circle(Vector(-15.5, -42.7, 0), Vector(0, 0, 1), 3.7), False)
sketch15.addConstraint(Sketcher.Constraint("Equal", 0, 1))
sketch15.addConstraint(Sketcher.Constraint("Equal", 1, 2))
sketch15.addConstraint(Sketcher.Constraint("Diameter", 0, Q("0.29 in")))
sketch15.addConstraint(Sketcher.Constraint("DistanceY", -1, 1, 0, 3, Q("0.9 in")))
sketch15.addConstraint(Sketcher.Constraint("DistanceX", 0, 3, -1, 1, Q("1.23 in")))
sketch15.addConstraint(Sketcher.Constraint("DistanceX", -1, 1, 1, 3, Q("1.73 in")))
sketch15.addConstraint(Sketcher.Constraint("DistanceY", 1, 3, -1, 1, Q("0.31 in")))
sketch15.addConstraint(Sketcher.Constraint("DistanceX", 2, 3, -1, 1, Q("0.61 in")))
sketch15.addConstraint(Sketcher.Constraint("DistanceY", 2, 3, -1, 1, Q("1.68 in")))
pocket2 = body.newObject("PartDesign::Pocket", "Pocket001")
pocket2.Profile = sketch15
pocket2.Type = "ThroughAll"
pocket2.Reversed = True

# Sketch on XZ plane
sketch16 = body.newObject("Sketcher::SketchObject", "Sketch015")
sketch16.AttachmentSupport = (doc.getObject("XZ_Plane"), [""])
sketch16.MapMode = "FlatFace"
sketch16.AttachmentOffset = App.Placement(Vector(0, 0, -0.95 * 25.4), App.Rotation())
sketch16.addGeometry(Part.Circle(Vector(0, 0, 0), Vector(0, 0, 1), 4), False)
sketch16.addConstraint(Sketcher.Constraint("Coincident", 0, 3, -1, 1))
sketch16.addConstraint(Sketcher.Constraint("Diameter", 0, Q("8 mm")))
pad14 = body.newObject("PartDesign::Pad", "Pad013")
pad14.Profile = sketch16
pad14.Length = Q("0.7 in")
pad14.Reversed = True

# Sketch on XZ plane
sketch17 = body.newObject("Sketcher::SketchObject", "Sketch016")
sketch17.AttachmentSupport = (doc.getObject("XZ_Plane"), [""])
sketch17.MapMode = "FlatFace"
sketch17.AttachmentOffset = App.Placement(Vector(0, 0, -0.95 * 25.4), App.Rotation())
sketch17.addGeometry(Part.LineSegment(Vector(-2.9, 7, 0), Vector(-0.9, 8.9, 0)), False)
sketch17.addGeometry(Part.ArcOfCircle(Part.Circle(Vector(0, 0, 0), Vector(0, 0, 1), 9), math.radians(83.94), math.radians(96.06)), False)
sketch17.addGeometry(Part.LineSegment(Vector(0.9, 8.9, 0), Vector(2.9, 7, 0)), False)
sketch17.addGeometry(Part.LineSegment(Vector(2.9, 7, 0), Vector(5.7, 7, 0)), False)
sketch17.addGeometry(Part.ArcOfCircle(Part.Circle(Vector(0, 0, 0), Vector(0, 0, 1), 9), math.radians(38.94), math.radians(51.06)), False)
sketch17.addGeometry(Part.LineSegment(Vector(7, 5.7, 0), Vector(7, 2.9, 0)), False)
sketch17.addGeometry(Part.LineSegment(Vector(7, 2.9, 0), Vector(8.9, 0.9, 0)), False)
sketch17.addGeometry(Part.ArcOfCircle(Part.Circle(Vector(0, 0, 0), Vector(0, 0, 1), 9), math.radians(-6.06), math.radians(6.06)), False)
sketch17.addGeometry(Part.LineSegment(Vector(8.9, -0.9, 0), Vector(7, -2.9, 0)), False)
sketch17.addGeometry(Part.LineSegment(Vector(7, -2.9, 0), Vector(7, -5.7, 0)), False)
sketch17.addGeometry(Part.ArcOfCircle(Part.Circle(Vector(0, 0, 0), Vector(0, 0, 1), 9), math.radians(-51.06), math.radians(-38.94)), False)
sketch17.addGeometry(Part.LineSegment(Vector(5.7, -7, 0), Vector(2.9, -7, 0)), False)
sketch17.addGeometry(Part.LineSegment(Vector(2.9, -7, 0), Vector(0.9, -8.9, 0)), False)
sketch17.addGeometry(Part.ArcOfCircle(Part.Circle(Vector(0, 0, 0), Vector(0, 0, 1), 9), math.radians(-96.06), math.radians(-83.94)), False)
sketch17.addGeometry(Part.LineSegment(Vector(-0.9, -8.9, 0), Vector(-2.9, -7, 0)), False)
sketch17.addGeometry(Part.LineSegment(Vector(-2.9, -7, 0), Vector(-5.7, -7, 0)), False)
sketch17.addGeometry(Part.ArcOfCircle(Part.Circle(Vector(0, 0, 0), Vector(0, 0, 1), 9), math.radians(-141.06), math.radians(-128.94)), False)
sketch17.addGeometry(Part.LineSegment(Vector(-7, -5.7, 0), Vector(-7, -2.9, 0)), False)
sketch17.addGeometry(Part.LineSegment(Vector(-7, -2.9, 0), Vector(-8.9, -0.9, 0)), False)
sketch17.addGeometry(Part.ArcOfCircle(Part.Circle(Vector(0, 0, 0), Vector(0, 0, 1), 9), math.radians(173.94), math.radians(186.06)), False)
sketch17.addGeometry(Part.LineSegment(Vector(-8.9, 0.9, 0), Vector(-7, 2.9, 0)), False)
sketch17.addGeometry(Part.LineSegment(Vector(-7, 2.9, 0), Vector(-7, 5.7, 0)), False)
sketch17.addGeometry(Part.ArcOfCircle(Part.Circle(Vector(0, 0, 0), Vector(0, 0, 1), 9), math.radians(128.94), math.radians(141.06)), False)
sketch17.addGeometry(Part.LineSegment(Vector(-5.7, 7, 0), Vector(-2.9, 7, 0)), False)
sketch17.addGeometry(Part.Circle(Vector(0, 0, 0), Vector(0, 0, 1), 4), False)
sketch17.addConstraint(Sketcher.Constraint("Coincident", 0, 2, 1, 2))
sketch17.addConstraint(Sketcher.Constraint("Coincident", 1, 1, 2, 1))
sketch17.addConstraint(Sketcher.Constraint("Coincident", 2, 2, 3, 1))
sketch17.addConstraint(Sketcher.Constraint("Coincident", 3, 2, 4, 2))
sketch17.addConstraint(Sketcher.Constraint("Coincident", 4, 1, 5, 1))
sketch17.addConstraint(Sketcher.Constraint("Coincident", 5, 2, 6, 1))
sketch17.addConstraint(Sketcher.Constraint("Coincident", 6, 2, 7, 2))
sketch17.addConstraint(Sketcher.Constraint("Coincident", 7, 1, 8, 1))
sketch17.addConstraint(Sketcher.Constraint("Coincident", 8, 2, 9, 1))
sketch17.addConstraint(Sketcher.Constraint("Coincident", 9, 2, 10, 2))
sketch17.addConstraint(Sketcher.Constraint("Coincident", 10, 1, 11, 1))
sketch17.addConstraint(Sketcher.Constraint("Coincident", 11, 2, 12, 1))
sketch17.addConstraint(Sketcher.Constraint("Coincident", 12, 2, 13, 2))
sketch17.addConstraint(Sketcher.Constraint("Coincident", 13, 1, 14, 1))
sketch17.addConstraint(Sketcher.Constraint("Coincident", 14, 2, 15, 1))
sketch17.addConstraint(Sketcher.Constraint("Coincident", 15, 2, 16, 2))
sketch17.addConstraint(Sketcher.Constraint("Coincident", 16, 1, 17, 1))
sketch17.addConstraint(Sketcher.Constraint("Coincident", 17, 2, 18, 1))
sketch17.addConstraint(Sketcher.Constraint("Coincident", 18, 2, 19, 2))
sketch17.addConstraint(Sketcher.Constraint("Coincident", 19, 1, 20, 1))
sketch17.addConstraint(Sketcher.Constraint("Coincident", 20, 2, 21, 1))
sketch17.addConstraint(Sketcher.Constraint("Coincident", 21, 2, 22, 2))
sketch17.addConstraint(Sketcher.Constraint("Coincident", 22, 1, 23, 1))
sketch17.addConstraint(Sketcher.Constraint("Coincident", 23, 2, 0, 1))
sketch17.addConstraint(Sketcher.Constraint("Horizontal", 3))
sketch17.addConstraint(Sketcher.Constraint("Vertical", 5))
sketch17.addConstraint(Sketcher.Constraint("Vertical", 9))
sketch17.addConstraint(Sketcher.Constraint("Horizontal", 11))
sketch17.addConstraint(Sketcher.Constraint("Horizontal", 15))
sketch17.addConstraint(Sketcher.Constraint("Vertical", 17))
sketch17.addConstraint(Sketcher.Constraint("Vertical", 21))
sketch17.addConstraint(Sketcher.Constraint("Horizontal", 23))
sketch17.addConstraint(Sketcher.Constraint("Coincident", 1, 3, -1, 1))
sketch17.addConstraint(Sketcher.Constraint("Coincident", 4, 3, -1, 1))
sketch17.addConstraint(Sketcher.Constraint("Coincident", 7, 3, -1, 1))
sketch17.addConstraint(Sketcher.Constraint("Coincident", 10, 3, -1, 1))
sketch17.addConstraint(Sketcher.Constraint("Coincident", 13, 3, -1, 1))
sketch17.addConstraint(Sketcher.Constraint("Coincident", 16, 3, -1, 1))
sketch17.addConstraint(Sketcher.Constraint("Coincident", 19, 3, -1, 1))
sketch17.addConstraint(Sketcher.Constraint("Coincident", 22, 3, -1, 1))
sketch17.addConstraint(Sketcher.Constraint("Coincident", 24, 3, -1, 1))
sketch17.addConstraint(Sketcher.Constraint("Equal", 1, 4))
sketch17.addConstraint(Sketcher.Constraint("Equal", 4, 7))
sketch17.addConstraint(Sketcher.Constraint("Equal", 7, 10))
sketch17.addConstraint(Sketcher.Constraint("Equal", 10, 13))
sketch17.addConstraint(Sketcher.Constraint("Equal", 13, 16))
sketch17.addConstraint(Sketcher.Constraint("Equal", 16, 19))
sketch17.addConstraint(Sketcher.Constraint("Equal", 19, 22))
sketch17.addConstraint(Sketcher.Constraint("Symmetric", 2, 2, 14, 2, -1, 1))
sketch17.addConstraint(Sketcher.Constraint("Symmetric", 5, 2, 17, 2, -1, 1))
sketch17.addConstraint(Sketcher.Constraint("Symmetric", 8, 2, 20, 2, -1, 1))
sketch17.addConstraint(Sketcher.Constraint("Symmetric", 11, 2, 23, 2, -1, 1))
sketch17.addConstraint(Sketcher.Constraint("Symmetric", 11, 2, 14, 2, -2))
sketch17.addConstraint(Sketcher.Constraint("Symmetric", 8, 2, 17, 2, -2))
sketch17.addConstraint(Sketcher.Constraint("Perpendicular", 0, 2))
sketch17.addConstraint(Sketcher.Constraint("Parallel", 2, 6))
sketch17.addConstraint(Sketcher.Constraint("Perpendicular", 6, 8))
sketch17.addConstraint(Sketcher.Constraint("Parallel", 8, 12))
sketch17.addConstraint(Sketcher.Constraint("Perpendicular", 12, 14))
sketch17.addConstraint(Sketcher.Constraint("Parallel", 14, 18))
sketch17.addConstraint(Sketcher.Constraint("Perpendicular", 18, 20))
sketch17.addConstraint(Sketcher.Constraint("Horizontal", 0, 2, 1, 1))
sketch17.addConstraint(Sketcher.Constraint("Equal", 23, 5))
sketch17.addConstraint(Sketcher.Constraint("Equal", 2, 6))
sketch17.addConstraint(Sketcher.Constraint("Diameter", 24, Q("8 mm")))
sketch17.addConstraint(Sketcher.Constraint("Radius", 1, Q("9 mm")))
sketch17.addConstraint(Sketcher.Constraint("DistanceX", 3, 1, 3, 2, Q("2.757359 mm")))
sketch17.addConstraint(Sketcher.Constraint("DistanceY", -1, 1, 2, 2, Q("7 mm")))
pad15 = body.newObject("PartDesign::Pad", "Pad014")
pad15.Profile = sketch17
pad15.Length = 12
pad15.Reversed = True

doc.recompute()
